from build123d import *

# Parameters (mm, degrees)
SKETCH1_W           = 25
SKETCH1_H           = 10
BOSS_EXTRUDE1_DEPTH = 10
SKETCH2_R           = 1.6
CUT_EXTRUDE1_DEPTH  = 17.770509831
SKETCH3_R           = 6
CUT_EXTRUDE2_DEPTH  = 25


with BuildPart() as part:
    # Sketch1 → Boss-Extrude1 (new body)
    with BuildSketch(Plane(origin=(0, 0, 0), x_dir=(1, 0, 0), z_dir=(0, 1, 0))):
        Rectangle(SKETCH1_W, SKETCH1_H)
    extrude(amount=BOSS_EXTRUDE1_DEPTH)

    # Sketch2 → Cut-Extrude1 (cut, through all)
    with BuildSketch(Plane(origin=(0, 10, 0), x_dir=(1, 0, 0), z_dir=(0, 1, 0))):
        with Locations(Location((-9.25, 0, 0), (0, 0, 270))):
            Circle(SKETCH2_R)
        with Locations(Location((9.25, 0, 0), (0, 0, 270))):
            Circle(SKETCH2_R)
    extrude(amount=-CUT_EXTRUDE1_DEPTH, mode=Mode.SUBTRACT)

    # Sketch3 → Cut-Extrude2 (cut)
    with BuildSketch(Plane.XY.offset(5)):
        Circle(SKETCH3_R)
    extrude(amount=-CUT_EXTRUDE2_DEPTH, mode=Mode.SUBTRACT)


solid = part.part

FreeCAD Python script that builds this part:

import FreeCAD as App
import Part
import Sketcher

V = App.Vector
Q = App.Units.Quantity


def add_polygon(sketch, points):
    """Adds a closed chain of lines whose ends are joined by coincident constraints."""
    first, n = sketch.GeometryCount, len(points)
    for a, b in zip(points, points[1:] + points[:1]):
        sketch.addGeometry(Part.LineSegment(App.Vector(*a, 0), App.Vector(*b, 0)), False)
    for i in range(n):
        sketch.addConstraint(Sketcher.Constraint("Coincident", first + i, 2, first + (i + 1) % n, 1))

doc = App.newDocument("Part")
body = doc.addObject("PartDesign::Body", "Body")

# Sketch on XZ plane
sketch1 = doc.addObject("Sketcher::SketchObject", "Sketch")
body.addObject(sketch1)
sketch1.AttachmentSupport = (doc.XZ_Plane, [""])
sketch1.MapMode = "FlatFace"
add_polygon(sketch1, [(-12, -5), (-12, 5), (12, 5), (12, -5)])  # lines 0-3
sketch1.addConstraint([
    Sketcher.Constraint("Vertical", 0),
    Sketcher.Constraint("Horizontal", 1),
    Sketcher.Constraint("Vertical", 2),
    Sketcher.Constraint("Horizontal", 3),
    Sketcher.Constraint("Symmetric", 0, 2, 2, 2, -1, 1),
    Sketcher.Constraint("DistanceX", 1, 1, 1, 2, Q("25 mm")),
    Sketcher.Constraint("DistanceY", 0, 1, 0, 2, Q("10 mm")),
])
pad1 = doc.addObject("PartDesign::Pad", "Pad")
body.addObject(pad1)
pad1.Profile = sketch1
pad1.Length = 10
pad1.Reversed = True

# Sketch on XZ plane
sketch2 = doc.addObject("Sketcher::SketchObject", "Sketch001")
body.addObject(sketch2)
sketch2.AttachmentSupport = (doc.XZ_Plane, [""])
sketch2.MapMode = "FlatFace"
sketch2.AttachmentOffset = App.Placement(V(0, 0, -10), App.Rotation())
sketch2.addGeometry([
    Part.Circle(V(-9.2, 0, 0), V(0, 0, 1), 1.6),
    Part.Circle(V(9.2, 0, 0), V(0, 0, 1), 1.6),
], False)
sketch2.addConstraint([
    Sketcher.Constraint("Equal", 0, 1),
    Sketcher.Constraint("Symmetric", 0, 3, 1, 3, -1, 1),
    Sketcher.Constraint("PointOnObject", 0, 3, -1),
    Sketcher.Constraint("Diameter", 0, Q("3.2 mm")),
    Sketcher.Constraint("DistanceX", 0, 3, 1, 3, Q("18.5 mm")),
])
pocket1 = doc.addObject("PartDesign::Pocket", "Pocket")
body.addObject(pocket1)
pocket1.Profile = sketch2
pocket1.Type = "ThroughAll"
pocket1.Reversed = True

# Sketch on XY plane
sketch3 = doc.addObject("Sketcher::SketchObject", "Sketch002")
body.addObject(sketch3)
sketch3.AttachmentSupport = (doc.XY_Plane, [""])
sketch3.MapMode = "FlatFace"
sketch3.AttachmentOffset = App.Placement(V(0, 0, 5), App.Rotation())
sketch3.addGeometry(Part.Circle(V(0, 0, 0), V(0, 0, 1), 6), False)
sketch3.addConstraint([
    Sketcher.Constraint("Coincident", 0, 3, -1, 1),
    Sketcher.Constraint("Diameter", 0, Q("12 mm")),
])
pocket2 = doc.addObject("PartDesign::Pocket", "Pocket001")
body.addObject(pocket2)
pocket2.Profile = sketch3
pocket2.Length = 25

doc.recompute()
